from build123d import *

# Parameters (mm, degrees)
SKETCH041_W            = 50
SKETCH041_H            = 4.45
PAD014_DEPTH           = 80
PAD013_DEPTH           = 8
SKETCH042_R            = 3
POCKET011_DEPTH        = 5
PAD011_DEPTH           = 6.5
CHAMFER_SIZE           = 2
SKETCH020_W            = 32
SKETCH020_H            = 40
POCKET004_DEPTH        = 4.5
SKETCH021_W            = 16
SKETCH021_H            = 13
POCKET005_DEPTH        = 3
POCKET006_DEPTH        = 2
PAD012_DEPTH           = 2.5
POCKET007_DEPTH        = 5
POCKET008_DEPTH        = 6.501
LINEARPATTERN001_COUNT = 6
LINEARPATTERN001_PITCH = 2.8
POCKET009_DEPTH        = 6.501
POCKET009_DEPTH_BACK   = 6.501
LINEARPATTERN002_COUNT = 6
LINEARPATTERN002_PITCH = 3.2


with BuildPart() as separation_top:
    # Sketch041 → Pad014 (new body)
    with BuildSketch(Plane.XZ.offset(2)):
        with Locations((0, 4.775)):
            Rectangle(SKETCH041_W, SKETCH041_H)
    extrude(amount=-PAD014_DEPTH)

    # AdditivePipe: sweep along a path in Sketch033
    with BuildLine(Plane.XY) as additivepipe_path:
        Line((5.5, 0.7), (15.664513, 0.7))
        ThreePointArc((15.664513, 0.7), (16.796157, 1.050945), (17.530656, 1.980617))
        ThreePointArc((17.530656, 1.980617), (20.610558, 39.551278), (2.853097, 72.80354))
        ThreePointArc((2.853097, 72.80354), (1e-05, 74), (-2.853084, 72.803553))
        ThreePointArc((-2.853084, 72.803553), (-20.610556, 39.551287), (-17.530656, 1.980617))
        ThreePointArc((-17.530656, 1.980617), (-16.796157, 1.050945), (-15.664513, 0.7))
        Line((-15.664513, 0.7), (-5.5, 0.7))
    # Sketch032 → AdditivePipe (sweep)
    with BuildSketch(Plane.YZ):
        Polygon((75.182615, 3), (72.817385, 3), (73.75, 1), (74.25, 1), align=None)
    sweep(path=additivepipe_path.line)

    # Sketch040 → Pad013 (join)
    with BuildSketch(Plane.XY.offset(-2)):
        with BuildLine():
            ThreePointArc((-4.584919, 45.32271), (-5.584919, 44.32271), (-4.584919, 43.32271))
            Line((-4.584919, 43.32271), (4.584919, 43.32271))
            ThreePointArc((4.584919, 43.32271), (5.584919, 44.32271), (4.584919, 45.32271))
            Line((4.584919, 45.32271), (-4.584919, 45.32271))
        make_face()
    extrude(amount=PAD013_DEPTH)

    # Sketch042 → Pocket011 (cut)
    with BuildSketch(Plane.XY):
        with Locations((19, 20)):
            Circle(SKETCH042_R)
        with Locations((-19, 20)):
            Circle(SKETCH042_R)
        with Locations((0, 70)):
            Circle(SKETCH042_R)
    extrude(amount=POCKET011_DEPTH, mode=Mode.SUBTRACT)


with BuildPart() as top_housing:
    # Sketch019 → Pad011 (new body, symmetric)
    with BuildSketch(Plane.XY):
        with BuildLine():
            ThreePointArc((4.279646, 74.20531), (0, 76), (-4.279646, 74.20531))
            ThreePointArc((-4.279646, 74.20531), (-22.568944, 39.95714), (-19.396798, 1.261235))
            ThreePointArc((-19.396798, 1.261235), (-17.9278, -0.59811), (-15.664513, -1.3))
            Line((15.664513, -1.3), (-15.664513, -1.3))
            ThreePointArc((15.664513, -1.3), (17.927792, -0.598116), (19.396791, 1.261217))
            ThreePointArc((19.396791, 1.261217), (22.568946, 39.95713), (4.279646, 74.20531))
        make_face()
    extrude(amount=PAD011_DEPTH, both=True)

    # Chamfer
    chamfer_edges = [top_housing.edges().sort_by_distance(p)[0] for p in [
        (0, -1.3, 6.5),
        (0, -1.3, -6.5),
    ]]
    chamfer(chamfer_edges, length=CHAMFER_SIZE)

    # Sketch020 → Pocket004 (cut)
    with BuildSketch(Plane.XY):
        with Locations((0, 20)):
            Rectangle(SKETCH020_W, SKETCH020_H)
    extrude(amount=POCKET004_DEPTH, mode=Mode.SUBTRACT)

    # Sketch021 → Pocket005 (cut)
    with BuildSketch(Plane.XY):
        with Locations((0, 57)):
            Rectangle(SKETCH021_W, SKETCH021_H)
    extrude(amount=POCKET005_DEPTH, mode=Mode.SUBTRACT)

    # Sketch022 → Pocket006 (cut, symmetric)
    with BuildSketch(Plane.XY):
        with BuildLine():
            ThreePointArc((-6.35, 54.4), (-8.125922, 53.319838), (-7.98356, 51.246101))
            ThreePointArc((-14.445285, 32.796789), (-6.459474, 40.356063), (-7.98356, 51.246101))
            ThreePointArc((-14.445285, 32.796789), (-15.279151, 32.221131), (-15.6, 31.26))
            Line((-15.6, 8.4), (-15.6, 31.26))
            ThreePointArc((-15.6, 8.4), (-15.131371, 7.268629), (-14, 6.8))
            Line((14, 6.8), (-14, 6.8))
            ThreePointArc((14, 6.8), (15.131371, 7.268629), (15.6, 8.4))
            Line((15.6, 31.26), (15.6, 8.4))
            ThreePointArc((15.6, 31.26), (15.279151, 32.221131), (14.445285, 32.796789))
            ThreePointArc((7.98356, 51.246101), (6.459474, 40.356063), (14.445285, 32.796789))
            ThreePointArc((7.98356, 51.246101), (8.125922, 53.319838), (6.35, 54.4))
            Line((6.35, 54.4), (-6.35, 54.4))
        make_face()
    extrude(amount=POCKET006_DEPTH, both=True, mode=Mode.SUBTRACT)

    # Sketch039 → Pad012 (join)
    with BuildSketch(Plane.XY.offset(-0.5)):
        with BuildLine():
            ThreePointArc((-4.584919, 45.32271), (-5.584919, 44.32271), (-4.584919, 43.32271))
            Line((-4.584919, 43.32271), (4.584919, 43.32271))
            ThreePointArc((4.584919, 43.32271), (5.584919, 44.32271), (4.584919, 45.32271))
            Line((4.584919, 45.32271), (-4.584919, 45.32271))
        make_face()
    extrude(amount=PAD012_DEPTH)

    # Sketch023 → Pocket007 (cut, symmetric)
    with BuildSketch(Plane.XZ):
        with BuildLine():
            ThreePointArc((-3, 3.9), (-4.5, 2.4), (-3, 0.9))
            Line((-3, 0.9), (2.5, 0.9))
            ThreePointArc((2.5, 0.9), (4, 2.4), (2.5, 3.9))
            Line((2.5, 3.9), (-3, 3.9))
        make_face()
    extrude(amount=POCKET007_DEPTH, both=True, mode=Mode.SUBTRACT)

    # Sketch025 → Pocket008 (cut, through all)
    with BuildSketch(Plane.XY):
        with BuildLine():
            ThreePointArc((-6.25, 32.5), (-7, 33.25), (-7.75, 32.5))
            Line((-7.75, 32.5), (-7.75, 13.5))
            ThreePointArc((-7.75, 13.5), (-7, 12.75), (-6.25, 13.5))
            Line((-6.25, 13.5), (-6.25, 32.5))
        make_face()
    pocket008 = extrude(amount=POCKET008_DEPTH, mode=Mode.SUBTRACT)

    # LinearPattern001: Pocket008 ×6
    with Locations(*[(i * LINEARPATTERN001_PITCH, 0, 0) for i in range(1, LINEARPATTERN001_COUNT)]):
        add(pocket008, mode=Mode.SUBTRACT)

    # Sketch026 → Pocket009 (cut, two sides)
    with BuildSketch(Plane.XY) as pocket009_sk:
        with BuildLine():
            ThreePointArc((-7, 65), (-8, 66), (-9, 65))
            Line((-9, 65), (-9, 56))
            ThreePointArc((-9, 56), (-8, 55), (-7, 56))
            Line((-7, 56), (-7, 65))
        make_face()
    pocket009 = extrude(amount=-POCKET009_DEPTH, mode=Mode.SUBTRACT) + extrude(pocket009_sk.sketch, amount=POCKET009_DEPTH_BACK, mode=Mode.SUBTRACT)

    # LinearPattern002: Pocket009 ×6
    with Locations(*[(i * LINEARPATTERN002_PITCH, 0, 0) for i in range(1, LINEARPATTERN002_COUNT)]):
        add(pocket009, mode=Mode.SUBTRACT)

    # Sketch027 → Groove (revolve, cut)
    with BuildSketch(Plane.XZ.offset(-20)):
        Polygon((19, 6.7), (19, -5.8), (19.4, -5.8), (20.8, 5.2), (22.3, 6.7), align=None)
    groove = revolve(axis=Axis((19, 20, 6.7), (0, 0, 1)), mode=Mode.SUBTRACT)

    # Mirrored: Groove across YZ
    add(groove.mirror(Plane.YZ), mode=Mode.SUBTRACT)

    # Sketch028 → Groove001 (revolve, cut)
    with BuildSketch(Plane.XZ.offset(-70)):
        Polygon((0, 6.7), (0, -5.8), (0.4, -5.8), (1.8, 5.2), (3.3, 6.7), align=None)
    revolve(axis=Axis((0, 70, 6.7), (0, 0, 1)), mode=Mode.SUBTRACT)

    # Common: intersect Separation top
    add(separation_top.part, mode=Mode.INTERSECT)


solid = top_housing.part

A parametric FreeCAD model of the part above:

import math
import FreeCAD as App
import Part
import Sketcher
Q = App.Units.Quantity


def edges_at(feature, points):
    """Names of the edges that pass closest to the given points."""
    edges = feature.Shape.Edges
    near = lambda p: min(range(len(edges)), key=lambda i: edges[i].distToShape(Part.Vertex(*p))[0])
    return sorted({f"Edge{near(p) + 1}" for p in points})


def add_polygon(sketch, points):
    """Adds a closed chain of lines whose ends are joined by coincident constraints."""
    first, n = sketch.GeometryCount, len(points)
    for a, b in zip(points, points[1:] + points[:1]):
        sketch.addGeometry(Part.LineSegment(App.Vector(*a, 0), App.Vector(*b, 0)), False)
    for i in range(n):
        sketch.addConstraint(Sketcher.Constraint("Coincident", first + i, 2, first + (i + 1) % n, 1))

doc = App.newDocument("Part")
body = doc.addObject("PartDesign::Body", "Body")

sketch1 = body.newObject("Sketcher::SketchObject", "Sketch")
sketch1.AttachmentSupport = (doc.getObject("XZ_Plane"), [""])
sketch1.MapMode = "FlatFace"
sketch1.AttachmentOffset = App.Placement(App.Vector(0, 0, 2), App.Rotation())
add_polygon(sketch1, [(-25, 7), (-25, 2.5), (25, 2.5), (25, 7)])
sketch1.addConstraint([
    Sketcher.Constraint("Vertical", 0),
    Sketcher.Constraint("Horizontal", 1),
    Sketcher.Constraint("Vertical", 2),
    Sketcher.Constraint("Horizontal", 3),
    Sketcher.Constraint("DistanceX", 1, 1, 1, 2, 50.0),
    Sketcher.Constraint("DistanceX", 0, 2, -1, 1, 25.0),
    Sketcher.Constraint("DistanceY", -1, 1, 2, 2, 7.0),
    Sketcher.Constraint("DistanceY", 0, 2, 0, 1, 4.45),
])
pad1 = body.newObject("PartDesign::Pad", "Pad")
pad1.Profile = sketch1
pad1.Length = 80
pad1.Reversed = True

sketch2 = body.newObject("Sketcher::SketchObject", "Sketch001")
sketch2.AttachmentSupport = (doc.getObject("YZ_Plane"), [""])
sketch2.MapMode = "FlatFace"
add_polygon(sketch2, [(75.2, 3), (72.8, 3), (73.8, 1), (74.2, 1)])
sketch2.addConstraint([
    Sketcher.Constraint("Horizontal", 0),
    Sketcher.Constraint("Horizontal", 2),
    Sketcher.Constraint("Equal", 1, 3),
    Sketcher.Constraint("Angle", 1, Q("-65.000007 deg")),
    Sketcher.Constraint("DistanceX", 2, 1, 2, 2, 0.5),
    Sketcher.Constraint("DistanceY", -1, 1, 0, 2, 3.0),
    Sketcher.Constraint("DistanceY", -1, 1, 1, 2, 1.0),
    Sketcher.Constraint("DistanceX", -1, 1, 1, 2, 73.75),
])

sketch3 = body.newObject("Sketcher::SketchObject", "Sketch002")
sketch3.AttachmentSupport = (doc.getObject("XY_Plane"), [""])
sketch3.MapMode = "FlatFace"
sketch3.addGeometry([
    Part.LineSegment(App.Vector(5.5, 0.7, 0), App.Vector(15.7, 0.7, 0)),
    Part.ArcOfCircle(Part.Circle(App.Vector(15.7, 2.7, 0), App.Vector(0, 0, 1), 2), math.radians(-90), math.radians(-21)),
    Part.ArcOfCircle(Part.Circle(App.Vector(-44.8, 26, 0), App.Vector(0, 0, 1), 66.8), math.radians(-21), math.radians(44)),
    Part.ArcOfCircle(Part.Circle(App.Vector(0, 70, 0), App.Vector(0, 0, 1), 4), math.radians(44), math.radians(136)),
    Part.ArcOfCircle(Part.Circle(App.Vector(44.8, 26, 0), App.Vector(0, 0, 1), 66.8), math.radians(136), math.radians(201)),
    Part.ArcOfCircle(Part.Circle(App.Vector(-15.7, 2.7, 0), App.Vector(0, 0, 1), 2), math.radians(-159), math.radians(-90)),
    Part.LineSegment(App.Vector(-15.7, 0.7, 0), App.Vector(-5.5, 0.7, 0)),
], False)
sketch3.addConstraint([
    Sketcher.Constraint("Tangent", 0, 2, 1, 1),
    Sketcher.Constraint("Tangent", 1, 2, 2, 1),
    Sketcher.Constraint("Tangent", 2, 2, 3, 1),
    Sketcher.Constraint("Coincident", 3, 2, 4, 1),
    Sketcher.Constraint("Tangent", 4, 2, 5, 1),
    Sketcher.Constraint("Tangent", 5, 2, 6, 1),
    Sketcher.Constraint("Horizontal", 0),
    Sketcher.Constraint("Horizontal", 6),
    Sketcher.Constraint("Equal", 2, 4),
    Sketcher.Constraint("Equal", 1, 5),
    Sketcher.Constraint("Symmetric", 2, 3, 4, 3, -2),
    Sketcher.Constraint("Symmetric", 0, 1, 6, 2, -2),
    Sketcher.Constraint("Radius", 1, 2.000001),
    Sketcher.Constraint("Radius", 3, 3.999999),
    Sketcher.Constraint("DistanceY", -1, 1, 2, 3, 25.999999),
    Sketcher.Constraint("DistanceY", -1, 1, 3, 3, 70.000001),
    Sketcher.Constraint("DistanceX", 6, 2, 0, 1, 11.0),
    Sketcher.Constraint("DistanceY", -1, 1, 1, 3, 2.700001),
    Sketcher.Constraint("Radius", 2, 66.77778),
    Sketcher.Constraint("DistanceX", 3, 2, 2, 2, 5.706181),
])
doc.recompute()

additivepipe = body.newObject("PartDesign::AdditivePipe", "AdditivePipe")
additivepipe.Profile = sketch2
additivepipe.Spine = (sketch3, ["Edge1", "Edge2", "Edge3", "Edge4", "Edge5", "Edge6", "Edge7"])

sketch4 = body.newObject("Sketcher::SketchObject", "Sketch003")
sketch4.AttachmentSupport = (doc.getObject("XY_Plane"), [""])
sketch4.MapMode = "FlatFace"
sketch4.AttachmentOffset = App.Placement(App.Vector(0, 0, -2), App.Rotation())
sketch4.addGeometry([
    Part.ArcOfCircle(Part.Circle(App.Vector(-4.6, 44.3, 0), App.Vector(0, 0, 1), 1), math.radians(90), math.radians(270)),
    Part.LineSegment(App.Vector(-4.6, 43.3, 0), App.Vector(4.6, 43.3, 0)),
    Part.ArcOfCircle(Part.Circle(App.Vector(4.6, 44.3, 0), App.Vector(0, 0, 1), 1), math.radians(-90), math.radians(90)),
    Part.LineSegment(App.Vector(4.6, 45.3, 0), App.Vector(-4.6, 45.3, 0)),
], False)
sketch4.addConstraint([
    Sketcher.Constraint("Tangent", 0, 2, 1, 1),
    Sketcher.Constraint("Tangent", 1, 2, 2, 1),
    Sketcher.Constraint("Tangent", 2, 2, 3, 1),
    Sketcher.Constraint("Tangent", 3, 2, 0, 1),
    Sketcher.Constraint("Horizontal", 1),
    Sketcher.Constraint("Horizontal", 3),
    Sketcher.Constraint("Radius", 0, 1.0),
    Sketcher.Constraint("DistanceX", 1, 1, 1, 2, 9.169838),
    Sketcher.Constraint("DistanceX", 0, 3, -1, 1, 4.584919),
    Sketcher.Constraint("DistanceY", -1, 1, 0, 3, 44.32271),
])
pad2 = body.newObject("PartDesign::Pad", "Pad001")
pad2.Profile = sketch4
pad2.Length = 8

sketch5 = body.newObject("Sketcher::SketchObject", "Sketch004")
sketch5.AttachmentSupport = (doc.getObject("XY_Plane"), [""])
sketch5.MapMode = "FlatFace"
sketch5.addGeometry([
    Part.Circle(App.Vector(19, 20, 0), App.Vector(0, 0, 1), 3),
    Part.Circle(App.Vector(-19, 20, 0), App.Vector(0, 0, 1), 3),
    Part.Circle(App.Vector(0, 70, 0), App.Vector(0, 0, 1), 3),
], False)
sketch5.addConstraint([
    Sketcher.Constraint("Equal", 0, 1),
    Sketcher.Constraint("Equal", 1, 2),
    Sketcher.Constraint("Symmetric", 0, 3, 1, 3, -2),
    Sketcher.Constraint("PointOnObject", 2, 3, -2),
    Sketcher.Constraint("Diameter", 0, 6.0),
    Sketcher.Constraint("DistanceX", -1, 1, 0, 3, 19.0),
    Sketcher.Constraint("DistanceY", -1, 1, 0, 3, 20.0),
    Sketcher.Constraint("DistanceY", -1, 1, 2, 3, 70.0),
])
pocket1 = body.newObject("PartDesign::Pocket", "Pocket")
pocket1.Profile = sketch5
pocket1.Length = 5
pocket1.Reversed = True
body2 = doc.addObject("PartDesign::Body", "Body001")

sketch6 = body2.newObject("Sketcher::SketchObject", "Sketch005")
sketch6.AttachmentSupport = (doc.getObject("XY_Plane001"), [""])
sketch6.MapMode = "FlatFace"
sketch6.addGeometry([
    Part.ArcOfCircle(Part.Circle(App.Vector(0, 70, 0), App.Vector(0, 0, 1), 6), math.radians(44), math.radians(136)),
    Part.ArcOfCircle(Part.Circle(App.Vector(44.8, 26, 0), App.Vector(0, 0, 1), 68.8), math.radians(136), math.radians(201)),
    Part.ArcOfCircle(Part.Circle(App.Vector(-15.7, 2.7, 0), App.Vector(0, 0, 1), 4), math.radians(-159), math.radians(-90)),
    Part.LineSegment(App.Vector(-15.7, -1.3, 0), App.Vector(15.7, -1.3, 0)),
    Part.ArcOfCircle(Part.Circle(App.Vector(15.7, 2.7, 0), App.Vector(0, 0, 1), 4), math.radians(-90), math.radians(-21)),
    Part.ArcOfCircle(Part.Circle(App.Vector(-44.8, 26, 0), App.Vector(0, 0, 1), 68.8), math.radians(-21), math.radians(44)),
], False)
sketch6.addConstraint([
    Sketcher.Constraint("Tangent", 0, 2, 1, 1),
    Sketcher.Constraint("Tangent", 1, 2, 2, 1),
    Sketcher.Constraint("Tangent", 2, 2, 3, 1),
    Sketcher.Constraint("Tangent", 3, 2, 4, 1),
    Sketcher.Constraint("Coincident", 4, 2, 5, 1),
    Sketcher.Constraint("Tangent", 5, 2, 0, 1),
    Sketcher.Constraint("Horizontal", 3),
    Sketcher.Constraint("Equal", 1, 5),
    Sketcher.Constraint("Symmetric", 2, 3, 4, 3, -2),
    Sketcher.Constraint("PointOnObject", 0, 3, -2),
    Sketcher.Constraint("Radius", 0, 6.000001),
    Sketcher.Constraint("Radius", 2, 4.0),
    Sketcher.Constraint("DistanceY", -1, 1, 0, 3, 69.999999),
    Sketcher.Constraint("DistanceY", -1, 1, 1, 3, 26.0),
    Sketcher.Constraint("DistanceY", -1, 1, 2, 3, 2.7),
    Sketcher.Constraint("Radius", 1, 68.777778),
    Sketcher.Constraint("DistanceX", -1, 1, 4, 2, 19.396791),
])
pad3 = body2.newObject("PartDesign::Pad", "Pad002")
pad3.Profile = sketch6
pad3.Length = 13
pad3.Midplane = True
doc.recompute()

chamfer = body2.newObject("PartDesign::Chamfer", "Chamfer")
chamfer.Base = (pad3, edges_at(pad3, [(0, -1.3, 6.5), (0, -1.3, -6.5)]))
chamfer.Size = 2

sketch7 = body2.newObject("Sketcher::SketchObject", "Sketch006")
sketch7.AttachmentSupport = (doc.getObject("XY_Plane001"), [""])
sketch7.MapMode = "FlatFace"
add_polygon(sketch7, [(-16, 40), (-16, 0), (16, 0), (16, 40)])
sketch7.addConstraint([
    Sketcher.Constraint("Vertical", 0),
    Sketcher.Constraint("Horizontal", 1),
    Sketcher.Constraint("Vertical", 2),
    Sketcher.Constraint("Horizontal", 3),
    Sketcher.Constraint("Symmetric", 0, 2, 1, 2, -1, 1),
    Sketcher.Constraint("DistanceX", 1, 1, 1, 2, 32.0),
    Sketcher.Constraint("DistanceY", 0, 2, 0, 1, 40.0),
])
pocket2 = body2.newObject("PartDesign::Pocket", "Pocket001")
pocket2.Profile = sketch7
pocket2.Length = 4.5
pocket2.Reversed = True

sketch8 = body2.newObject("Sketcher::SketchObject", "Sketch007")
sketch8.AttachmentSupport = (doc.getObject("XY_Plane001"), [""])
sketch8.MapMode = "FlatFace"
add_polygon(sketch8, [(-8, 64), (-8, 50), (8, 50), (8, 64)])
sketch8.addConstraint([
    Sketcher.Constraint("Vertical", 0),
    Sketcher.Constraint("Horizontal", 1),
    Sketcher.Constraint("Vertical", 2),
    Sketcher.Constraint("Horizontal", 3),
    Sketcher.Constraint("DistanceX", 1, 1, 1, 2, 16.0),
    Sketcher.Constraint("DistanceY", 0, 2, 0, 1, 13.0),
    Sketcher.Constraint("DistanceX", 0, 2, -1, 1, 8.0),
    Sketcher.Constraint("DistanceY", -1, 1, 0, 2, 50.5),
])
pocket3 = body2.newObject("PartDesign::Pocket", "Pocket002")
pocket3.Profile = sketch8
pocket3.Length = 3
pocket3.Reversed = True

sketch9 = body2.newObject("Sketcher::SketchObject", "Sketch008")
sketch9.AttachmentSupport = (doc.getObject("XY_Plane001"), [""])
sketch9.MapMode = "FlatFace"
sketch9.addGeometry([
    Part.ArcOfCircle(Part.Circle(App.Vector(-6.4, 52.4, 0), App.Vector(0, 0, 1), 2), math.radians(90), math.radians(215)),
    Part.ArcOfCircle(Part.Circle(App.Vector(-17.8, 44.3, 0), App.Vector(0, 0, 1), 12), math.radians(-74), math.radians(35)),
    Part.ArcOfCircle(Part.Circle(App.Vector(-14, 31.3, 0), App.Vector(0, 0, 1), 1.6), math.radians(106), math.radians(180)),
    Part.LineSegment(App.Vector(-15.6, 31.3, 0), App.Vector(-15.6, 8.4, 0)),
    Part.ArcOfCircle(Part.Circle(App.Vector(-14, 8.4, 0), App.Vector(0, 0, 1), 1.6), math.radians(180), math.radians(270)),
    Part.LineSegment(App.Vector(-14, 6.8, 0), App.Vector(14, 6.8, 0)),
    Part.ArcOfCircle(Part.Circle(App.Vector(14, 8.4, 0), App.Vector(0, 0, 1), 1.6), math.radians(-90), math.radians(0)),
    Part.LineSegment(App.Vector(15.6, 8.4, 0), App.Vector(15.6, 31.3, 0)),
    Part.ArcOfCircle(Part.Circle(App.Vector(14, 31.3, 0), App.Vector(0, 0, 1), 1.6), math.radians(0), math.radians(74)),
    Part.ArcOfCircle(Part.Circle(App.Vector(17.8, 44.3, 0), App.Vector(0, 0, 1), 12), math.radians(145), math.radians(254)),
    Part.ArcOfCircle(Part.Circle(App.Vector(6.4, 52.4, 0), App.Vector(0, 0, 1), 2), math.radians(-35), math.radians(90)),
    Part.LineSegment(App.Vector(6.3, 54.4, 0), App.Vector(-6.3, 54.4, 0)),
], False)
sketch9.addConstraint([
    Sketcher.Constraint("Tangent", 0, 2, 1, 2),
    Sketcher.Constraint("Tangent", 1, 1, 2, 1),
    Sketcher.Constraint("Tangent", 2, 2, 3, 1),
    Sketcher.Constraint("Tangent", 3, 2, 4, 1),
    Sketcher.Constraint("Tangent", 4, 2, 5, 1),
    Sketcher.Constraint("Tangent", 5, 2, 6, 1),
    Sketcher.Constraint("Tangent", 6, 2, 7, 1),
    Sketcher.Constraint("Tangent", 7, 2, 8, 1),
    Sketcher.Constraint("Tangent", 8, 2, 9, 2),
    Sketcher.Constraint("Tangent", 9, 1, 10, 1),
    Sketcher.Constraint("Tangent", 10, 2, 11, 1),
    Sketcher.Constraint("Tangent", 11, 2, 0, 1),
    Sketcher.Constraint("Vertical", 3),
    Sketcher.Constraint("Horizontal", 5),
    Sketcher.Constraint("Vertical", 7),
    Sketcher.Constraint("Horizontal", 11),
    Sketcher.Constraint("Equal", 2, 4),
    Sketcher.Constraint("Equal", 4, 6),
    Sketcher.Constraint("Equal", 6, 8),
    Sketcher.Constraint("Equal", 1, 9),
    Sketcher.Constraint("Equal", 0, 10),
    Sketcher.Constraint("Symmetric", 2, 3, 8, 3, -2),
    Sketcher.Constraint("Horizontal", 1, 3, 9, 3),
    Sketcher.Constraint("Radius", 0, 2.0),
    Sketcher.Constraint("Radius", 1, 12.0),
    Sketcher.Constraint("Radius", 2, 1.599999),
    Sketcher.Constraint("DistanceX", 5, 1, 5, 2, 28.0),
    Sketcher.Constraint("DistanceX", 11, 2, 11, 1, 12.7),
    Sketcher.Constraint("DistanceY", 4, 3, 0, 3, 44.0),
    Sketcher.Constraint("DistanceY", 3, 2, 3, 1, 22.86),
    Sketcher.Constraint("DistanceY", -1, 1, 0, 3, 52.4),
])
pocket4 = body2.newObject("PartDesign::Pocket", "Pocket003")
pocket4.Profile = sketch9
pocket4.Length = 4
pocket4.Midplane = True

sketch10 = body2.newObject("Sketcher::SketchObject", "Sketch009")
sketch10.AttachmentSupport = (doc.getObject("XY_Plane001"), [""])
sketch10.MapMode = "FlatFace"
sketch10.AttachmentOffset = App.Placement(App.Vector(0, 0, -0.5), App.Rotation())
sketch10.addGeometry([
    Part.ArcOfCircle(Part.Circle(App.Vector(-4.6, 44.3, 0), App.Vector(0, 0, 1), 1), math.radians(90), math.radians(270)),
    Part.LineSegment(App.Vector(-4.6, 43.3, 0), App.Vector(4.6, 43.3, 0)),
    Part.ArcOfCircle(Part.Circle(App.Vector(4.6, 44.3, 0), App.Vector(0, 0, 1), 1), math.radians(-90), math.radians(90)),
    Part.LineSegment(App.Vector(4.6, 45.3, 0), App.Vector(-4.6, 45.3, 0)),
], False)
sketch10.addConstraint([
    Sketcher.Constraint("Tangent", 0, 2, 1, 1),
    Sketcher.Constraint("Tangent", 1, 2, 2, 1),
    Sketcher.Constraint("Tangent", 2, 2, 3, 1),
    Sketcher.Constraint("Tangent", 3, 2, 0, 1),
    Sketcher.Constraint("Horizontal", 1),
    Sketcher.Constraint("Horizontal", 3),
    Sketcher.Constraint("Radius", 0, 1.0),
    Sketcher.Constraint("DistanceX", 1, 1, 1, 2, 9.169838),
    Sketcher.Constraint("DistanceX", 0, 3, -1, 1, 4.584919),
    Sketcher.Constraint("DistanceY", -1, 1, 0, 3, 44.32271),
])
pad4 = body2.newObject("PartDesign::Pad", "Pad003")
pad4.Profile = sketch10
pad4.Length = 2.5

sketch11 = body2.newObject("Sketcher::SketchObject", "Sketch010")
sketch11.AttachmentSupport = (doc.getObject("XZ_Plane001"), [""])
sketch11.MapMode = "FlatFace"
sketch11.addGeometry([
    Part.ArcOfCircle(Part.Circle(App.Vector(-3, 2.4, 0), App.Vector(0, 0, 1), 1.5), math.radians(90), math.radians(270)),
    Part.LineSegment(App.Vector(-3, 0.9, 0), App.Vector(2.5, 0.9, 0)),
    Part.ArcOfCircle(Part.Circle(App.Vector(2.5, 2.4, 0), App.Vector(0, 0, 1), 1.5), math.radians(-90), math.radians(90)),
    Part.LineSegment(App.Vector(2.5, 3.9, 0), App.Vector(-3, 3.9, 0)),
], False)
sketch11.addConstraint([
    Sketcher.Constraint("Tangent", 0, 2, 1, 1),
    Sketcher.Constraint("Tangent", 1, 2, 2, 1),
    Sketcher.Constraint("Tangent", 2, 2, 3, 1),
    Sketcher.Constraint("Tangent", 3, 2, 0, 1),
    Sketcher.Constraint("Horizontal", 1),
    Sketcher.Constraint("Horizontal", 3),
    Sketcher.Constraint("Radius", 0, 1.5),
    Sketcher.Constraint("DistanceX", 1, 1, 1, 2, 5.5),
    Sketcher.Constraint("DistanceX", 0, 3, -1, 1, 3.0),
    Sketcher.Constraint("DistanceY", -1, 1, 0, 3, 2.4),
])
pocket5 = body2.newObject("PartDesign::Pocket", "Pocket004")
pocket5.Profile = sketch11
pocket5.Length = 10
pocket5.Midplane = True

sketch12 = body2.newObject("Sketcher::SketchObject", "Sketch011")
sketch12.AttachmentSupport = (doc.getObject("XY_Plane001"), [""])
sketch12.MapMode = "FlatFace"
sketch12.addGeometry([
    Part.ArcOfCircle(Part.Circle(App.Vector(-7, 32.5, 0), App.Vector(0, 0, 1), 0.8), math.radians(0), math.radians(180)),
    Part.LineSegment(App.Vector(-7.8, 32.5, 0), App.Vector(-7.8, 13.5, 0)),
    Part.ArcOfCircle(Part.Circle(App.Vector(-7, 13.5, 0), App.Vector(0, 0, 1), 0.8), math.radians(180), math.radians(360)),
    Part.LineSegment(App.Vector(-6.2, 13.5, 0), App.Vector(-6.2, 32.5, 0)),
], False)
sketch12.addConstraint([
    Sketcher.Constraint("Tangent", 0, 2, 1, 1),
    Sketcher.Constraint("Tangent", 1, 2, 2, 1),
    Sketcher.Constraint("Tangent", 2, 2, 3, 1),
    Sketcher.Constraint("Tangent", 3, 2, 0, 1),
    Sketcher.Constraint("Vertical", 1),
    Sketcher.Constraint("Vertical", 3),
    Sketcher.Constraint("DistanceY", 1, 2, 1, 1, 19.0),
    Sketcher.Constraint("Radius", 0, 0.75),
    Sketcher.Constraint("DistanceX", 0, 3, -1, 1, 7.0),
    Sketcher.Constraint("DistanceY", -1, 1, 0, 3, 32.5),
])
pocket6 = body2.newObject("PartDesign::Pocket", "Pocket005")
pocket6.Profile = sketch12
pocket6.Type = "ThroughAll"
pocket6.Reversed = True
doc.recompute()

linearpattern = body2.newObject("PartDesign::LinearPattern", "LinearPattern")
linearpattern.Originals = [pocket6]
linearpattern.Direction = (doc.getObject("X_Axis001"), [""])
linearpattern.Mode = "offset"
linearpattern.Offset = 2.8
linearpattern.Occurrences = 6
body2.Tip = linearpattern

sketch13 = body2.newObject("Sketcher::SketchObject", "Sketch012")
sketch13.AttachmentSupport = (doc.getObject("XY_Plane001"), [""])
sketch13.MapMode = "FlatFace"
sketch13.addGeometry([
    Part.ArcOfCircle(Part.Circle(App.Vector(-8, 65, 0), App.Vector(0, 0, 1), 1), math.radians(0), math.radians(180)),
    Part.LineSegment(App.Vector(-9, 65, 0), App.Vector(-9, 56, 0)),
    Part.ArcOfCircle(Part.Circle(App.Vector(-8, 56, 0), App.Vector(0, 0, 1), 1), math.radians(180), math.radians(360)),
    Part.LineSegment(App.Vector(-7, 56, 0), App.Vector(-7, 65, 0)),
], False)
sketch13.addConstraint([
    Sketcher.Constraint("Tangent", 0, 2, 1, 1),
    Sketcher.Constraint("Tangent", 1, 2, 2, 1),
    Sketcher.Constraint("Tangent", 2, 2, 3, 1),
    Sketcher.Constraint("Tangent", 3, 2, 0, 1),
    Sketcher.Constraint("Vertical", 1),
    Sketcher.Constraint("Vertical", 3),
    Sketcher.Constraint("Radius", 0, 1.0),
    Sketcher.Constraint("DistanceY", 1, 2, 1, 1, 9.0),
    Sketcher.Constraint("DistanceX", 0, 3, -1, 1, 8.0),
    Sketcher.Constraint("DistanceY", -1, 1, 0, 3, 65.0),
])
pocket7 = body2.newObject("PartDesign::Pocket", "Pocket006")
pocket7.Profile = sketch13
pocket7.Type = "ThroughAll"
pocket7.Midplane = True
doc.recompute()

linearpattern2 = body2.newObject("PartDesign::LinearPattern", "LinearPattern001")
linearpattern2.Originals = [pocket7]
linearpattern2.Direction = (doc.getObject("X_Axis001"), [""])
linearpattern2.Mode = "offset"
linearpattern2.Offset = 3.2
linearpattern2.Occurrences = 6
body2.Tip = linearpattern2

sketch14 = body2.newObject("Sketcher::SketchObject", "Sketch013")
sketch14.AttachmentSupport = (doc.getObject("XZ_Plane001"), [""])
sketch14.MapMode = "FlatFace"
sketch14.AttachmentOffset = App.Placement(App.Vector(0, 0, -20), App.Rotation())
add_polygon(sketch14, [(19, 6.7), (19, -5.8), (19.4, -5.8), (20.8, 5.2), (22.3, 6.7)])
sketch14.addGeometry(Part.LineSegment(App.Vector(19, -5.8, 0), App.Vector(19, 6.7, 0)), True)
sketch14.addConstraint([
    Sketcher.Constraint("Vertical", 0),
    Sketcher.Constraint("Horizontal", 1),
    Sketcher.Constraint("Horizontal", 4),
    Sketcher.Constraint("Vertical", 5),
    Sketcher.Constraint("Coincident", 5, 1, 0, 2),
    Sketcher.Constraint("Horizontal", 3, 2, 5, 2),
    Sketcher.Constraint("Angle", 3, Q("45 deg")),
    Sketcher.Constraint("DistanceX", 1, 1, 1, 2, 0.4),
    Sketcher.Constraint("DistanceX", 4, 2, 4, 1, 3.3),
    Sketcher.Constraint("DistanceY", 0, 2, 0, 1, 12.5),
    Sketcher.Constraint("DistanceX", -1, 1, 0, 2, 19.0),
    Sketcher.Constraint("DistanceY", 1, 2, 2, 2, 11.0),
    Sketcher.Constraint("DistanceY", 0, 2, -1, 1, 5.8),
])
groove = body2.newObject("PartDesign::Groove", "Groove")
groove.Profile = sketch14
groove.ReferenceAxis = (sketch14, ["Axis0"])
groove.Angle = 360
doc.recompute()

mirrored = body2.newObject("PartDesign::Mirrored", "Mirrored")
mirrored.Originals = [groove]
mirrored.MirrorPlane = (doc.getObject("YZ_Plane001"), [""])
body2.Tip = mirrored

sketch15 = body2.newObject("Sketcher::SketchObject", "Sketch014")
sketch15.AttachmentSupport = (doc.getObject("XZ_Plane001"), [""])
sketch15.MapMode = "FlatFace"
sketch15.AttachmentOffset = App.Placement(App.Vector(0, 0, -70), App.Rotation())
add_polygon(sketch15, [(0, 6.7), (0, -5.8), (0.4, -5.8), (1.8, 5.2), (3.3, 6.7)])
sketch15.addConstraint([
    Sketcher.Constraint("Vertical", 0),
    Sketcher.Constraint("Horizontal", 1),
    Sketcher.Constraint("Horizontal", 4),
    Sketcher.Constraint("PointOnObject", 0, 2, -2),
    Sketcher.Constraint("Angle", 3, Q("45 deg")),
    Sketcher.Constraint("DistanceX", 1, 1, 1, 2, 0.4),
    Sketcher.Constraint("DistanceX", 4, 2, 4, 1, 3.3),
    Sketcher.Constraint("DistanceY", 0, 2, 0, 1, 12.5),
    Sketcher.Constraint("DistanceY", 1, 2, 2, 2, 11.0),
    Sketcher.Constraint("DistanceY", 0, 2, -1, 1, 5.8),
])
groove2 = body2.newObject("PartDesign::Groove", "Groove001")
groove2.Profile = sketch15
groove2.ReferenceAxis = (sketch15, ["V_Axis"])
groove2.Angle = 360
doc.recompute()

boolean = body2.newObject("PartDesign::Boolean", "Boolean")
boolean.Type = "Common"
boolean.addObjects([body])

doc.recompute()
